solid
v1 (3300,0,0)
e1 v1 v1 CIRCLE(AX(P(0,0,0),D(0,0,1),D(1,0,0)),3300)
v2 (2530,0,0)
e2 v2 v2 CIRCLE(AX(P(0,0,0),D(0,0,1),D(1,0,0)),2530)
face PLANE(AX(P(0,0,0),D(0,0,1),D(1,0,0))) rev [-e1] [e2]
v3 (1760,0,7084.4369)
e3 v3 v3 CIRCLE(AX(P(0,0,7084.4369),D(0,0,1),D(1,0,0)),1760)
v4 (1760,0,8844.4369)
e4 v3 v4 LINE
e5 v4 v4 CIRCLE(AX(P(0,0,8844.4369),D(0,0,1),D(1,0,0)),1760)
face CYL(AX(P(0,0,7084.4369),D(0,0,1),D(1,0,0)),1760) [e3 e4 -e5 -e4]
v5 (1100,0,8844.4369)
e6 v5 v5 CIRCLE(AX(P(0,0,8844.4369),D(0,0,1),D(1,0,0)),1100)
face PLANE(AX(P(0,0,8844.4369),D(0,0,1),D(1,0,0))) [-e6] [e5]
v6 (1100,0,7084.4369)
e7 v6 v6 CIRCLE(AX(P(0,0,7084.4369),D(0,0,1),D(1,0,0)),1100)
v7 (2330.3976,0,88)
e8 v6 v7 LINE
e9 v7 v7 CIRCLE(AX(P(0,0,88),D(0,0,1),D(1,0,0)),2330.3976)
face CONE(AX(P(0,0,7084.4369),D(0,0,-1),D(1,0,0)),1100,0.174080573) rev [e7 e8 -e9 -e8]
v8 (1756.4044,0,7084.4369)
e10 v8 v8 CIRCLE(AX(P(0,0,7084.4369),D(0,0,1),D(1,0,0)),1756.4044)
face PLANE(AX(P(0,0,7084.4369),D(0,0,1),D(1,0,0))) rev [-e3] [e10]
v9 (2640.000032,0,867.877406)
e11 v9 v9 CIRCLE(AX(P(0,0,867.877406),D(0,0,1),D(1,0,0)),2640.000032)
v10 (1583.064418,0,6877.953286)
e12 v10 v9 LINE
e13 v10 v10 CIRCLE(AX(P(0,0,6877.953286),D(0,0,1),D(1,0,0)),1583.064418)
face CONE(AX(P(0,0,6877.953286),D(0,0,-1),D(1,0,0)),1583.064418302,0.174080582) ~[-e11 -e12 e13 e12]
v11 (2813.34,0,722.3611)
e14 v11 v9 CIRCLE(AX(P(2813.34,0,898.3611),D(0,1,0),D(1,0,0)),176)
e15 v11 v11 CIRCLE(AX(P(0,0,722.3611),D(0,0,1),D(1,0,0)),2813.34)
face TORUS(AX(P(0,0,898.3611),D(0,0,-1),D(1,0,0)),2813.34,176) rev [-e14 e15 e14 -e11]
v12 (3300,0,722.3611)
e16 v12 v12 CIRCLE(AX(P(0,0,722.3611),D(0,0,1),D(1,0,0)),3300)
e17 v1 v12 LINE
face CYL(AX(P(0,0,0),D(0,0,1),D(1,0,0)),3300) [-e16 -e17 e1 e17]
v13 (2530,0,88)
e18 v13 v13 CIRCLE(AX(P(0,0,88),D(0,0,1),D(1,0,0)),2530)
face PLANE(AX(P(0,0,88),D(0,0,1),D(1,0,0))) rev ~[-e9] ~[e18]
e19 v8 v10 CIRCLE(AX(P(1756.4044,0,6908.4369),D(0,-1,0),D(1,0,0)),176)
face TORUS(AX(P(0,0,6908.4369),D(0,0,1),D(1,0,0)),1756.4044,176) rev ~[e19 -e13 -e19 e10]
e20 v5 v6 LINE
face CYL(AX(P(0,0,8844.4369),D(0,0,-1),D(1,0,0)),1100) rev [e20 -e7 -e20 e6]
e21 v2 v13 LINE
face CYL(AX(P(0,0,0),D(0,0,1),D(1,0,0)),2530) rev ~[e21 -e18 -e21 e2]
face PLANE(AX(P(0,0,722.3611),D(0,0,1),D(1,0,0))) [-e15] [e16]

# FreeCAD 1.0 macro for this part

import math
import FreeCAD as App
import Part
import Sketcher
Q = App.Units.Quantity

doc = App.newDocument("Part")
body = doc.addObject("PartDesign::Body", "Body")

# Sketch on XZ plane
sketch1 = body.newObject("Sketcher::SketchObject", "Sketch")
sketch1.AttachmentSupport = (doc.getObject("XZ_Plane"), [""])
sketch1.MapMode = "FlatFace"
sketch1.addGeometry([
    Part.LineSegment(App.Vector(2640, 867.8774, 0), App.Vector(1583.0645, 6877.9533, 0)),  # 0
    Part.ArcOfCircle(Part.Circle(App.Vector(1756.4044, 6908.4369, 0), App.Vector(0, 0, 1), 176), math.radians(90), math.radians(189.974063)),  # 1
    Part.LineSegment(App.Vector(1756.4044, 7084.4369, 0), App.Vector(1760, 7084.4369, 0)),  # 2
    Part.LineSegment(App.Vector(1760, 7084.4369, 0), App.Vector(1760, 8844.4369, 0)),  # 3
    Part.LineSegment(App.Vector(1760, 8844.4369, 0), App.Vector(1100, 8844.4369, 0)),  # 4
    Part.LineSegment(App.Vector(1100, 8844.4369, 0), App.Vector(1100, 7084.4369, 0)),  # 5
    Part.LineSegment(App.Vector(1100, 7084.4369, 0), App.Vector(2330.3976, 88, 0)),  # 6
    Part.LineSegment(App.Vector(2330.3976, 88, 0), App.Vector(2530, 88, 0)),  # 7
    Part.LineSegment(App.Vector(2530, 88, 0), App.Vector(2530, 0, 0)),  # 8
    Part.LineSegment(App.Vector(2530, 0, 0), App.Vector(3300, 0, 0)),  # 9
    Part.LineSegment(App.Vector(3300, 0, 0), App.Vector(3300, 722.3611, 0)),  # 10
    Part.LineSegment(App.Vector(3300, 722.3611, 0), App.Vector(2813.34, 722.3611, 0)),  # 11
    Part.ArcOfCircle(Part.Circle(App.Vector(2813.34, 898.3611, 0), App.Vector(0, 0, 1), 176), math.radians(-170.02591), math.radians(-90)),  # 12
], False)
sketch1.addConstraint([
    Sketcher.Constraint("Coincident", 0, 2, 1, 2),
    Sketcher.Constraint("Coincident", 1, 1, 2, 1),
    Sketcher.Constraint("Coincident", 2, 2, 3, 1),
    Sketcher.Constraint("Coincident", 3, 2, 4, 1),
    Sketcher.Constraint("Coincident", 4, 2, 5, 1),
    Sketcher.Constraint("Coincident", 5, 2, 6, 1),
    Sketcher.Constraint("Coincident", 6, 2, 7, 1),
    Sketcher.Constraint("Coincident", 7, 2, 8, 1),
    Sketcher.Constraint("Coincident", 8, 2, 9, 1),
    Sketcher.Constraint("Coincident", 9, 2, 10, 1),
    Sketcher.Constraint("Coincident", 10, 2, 11, 1),
    Sketcher.Constraint("Coincident", 11, 2, 12, 2),
    Sketcher.Constraint("Coincident", 12, 1, 0, 1),
    Sketcher.Constraint("Horizontal", 2),
    Sketcher.Constraint("Vertical", 3),
    Sketcher.Constraint("Horizontal", 4),
    Sketcher.Constraint("Vertical", 5),
    Sketcher.Constraint("Horizontal", 7),
    Sketcher.Constraint("Vertical", 8),
    Sketcher.Constraint("Horizontal", 9),
    Sketcher.Constraint("Vertical", 10),
    Sketcher.Constraint("Horizontal", 11),
    Sketcher.Constraint("PointOnObject", 8, 2, -1),
    Sketcher.Constraint("Radius", 1, Q("176 mm")),
    Sketcher.Constraint("Radius", 12, Q("176 mm")),
    Sketcher.Constraint("DistanceX", 4, 2, 4, 1, Q("660 mm")),
    Sketcher.Constraint("DistanceX", 9, 1, 9, 2, Q("770 mm")),
    Sketcher.Constraint("DistanceY", 3, 1, 3, 2, Q("1760 mm")),
    Sketcher.Constraint("DistanceY", 5, 2, 5, 1, Q("1760 mm")),
    Sketcher.Constraint("DistanceY", 8, 2, 8, 1, Q("88 mm")),
    Sketcher.Constraint("DistanceX", -1, 1, 2, 2, Q("1760 mm")),
    Sketcher.Constraint("DistanceX", -1, 1, 7, 2, Q("2530 mm")),
    Sketcher.Constraint("DistanceX", -1, 1, 12, 1, Q("2640 mm")),
    Sketcher.Constraint("DistanceX", 11, 2, 11, 1, Q("486.66 mm")),
    Sketcher.Constraint("DistanceY", 10, 1, 10, 2, Q("722.361 mm")),
    Sketcher.Constraint("DistanceX", -1, 1, 12, 3, Q("2813.34 mm")),
    Sketcher.Constraint("DistanceX", 0, 2, 1, 3, Q("173.34 mm")),
    Sketcher.Constraint("DistanceX", 0, 2, 1, 1, Q("173.34 mm")),
    Sketcher.Constraint("Distance", 0, Q("6102.305 mm")),
    Sketcher.Constraint("DistanceX", 2, 1, 2, 2, Q("3.5956 mm")),
    Sketcher.Constraint("DistanceX", 7, 1, 7, 2, Q("199.6024 mm")),
])
revolution = body.newObject("PartDesign::Revolution", "Revolution")
revolution.Profile = sketch1
revolution.ReferenceAxis = (sketch1, ["V_Axis"])
revolution.Angle = 360

doc.recompute()
